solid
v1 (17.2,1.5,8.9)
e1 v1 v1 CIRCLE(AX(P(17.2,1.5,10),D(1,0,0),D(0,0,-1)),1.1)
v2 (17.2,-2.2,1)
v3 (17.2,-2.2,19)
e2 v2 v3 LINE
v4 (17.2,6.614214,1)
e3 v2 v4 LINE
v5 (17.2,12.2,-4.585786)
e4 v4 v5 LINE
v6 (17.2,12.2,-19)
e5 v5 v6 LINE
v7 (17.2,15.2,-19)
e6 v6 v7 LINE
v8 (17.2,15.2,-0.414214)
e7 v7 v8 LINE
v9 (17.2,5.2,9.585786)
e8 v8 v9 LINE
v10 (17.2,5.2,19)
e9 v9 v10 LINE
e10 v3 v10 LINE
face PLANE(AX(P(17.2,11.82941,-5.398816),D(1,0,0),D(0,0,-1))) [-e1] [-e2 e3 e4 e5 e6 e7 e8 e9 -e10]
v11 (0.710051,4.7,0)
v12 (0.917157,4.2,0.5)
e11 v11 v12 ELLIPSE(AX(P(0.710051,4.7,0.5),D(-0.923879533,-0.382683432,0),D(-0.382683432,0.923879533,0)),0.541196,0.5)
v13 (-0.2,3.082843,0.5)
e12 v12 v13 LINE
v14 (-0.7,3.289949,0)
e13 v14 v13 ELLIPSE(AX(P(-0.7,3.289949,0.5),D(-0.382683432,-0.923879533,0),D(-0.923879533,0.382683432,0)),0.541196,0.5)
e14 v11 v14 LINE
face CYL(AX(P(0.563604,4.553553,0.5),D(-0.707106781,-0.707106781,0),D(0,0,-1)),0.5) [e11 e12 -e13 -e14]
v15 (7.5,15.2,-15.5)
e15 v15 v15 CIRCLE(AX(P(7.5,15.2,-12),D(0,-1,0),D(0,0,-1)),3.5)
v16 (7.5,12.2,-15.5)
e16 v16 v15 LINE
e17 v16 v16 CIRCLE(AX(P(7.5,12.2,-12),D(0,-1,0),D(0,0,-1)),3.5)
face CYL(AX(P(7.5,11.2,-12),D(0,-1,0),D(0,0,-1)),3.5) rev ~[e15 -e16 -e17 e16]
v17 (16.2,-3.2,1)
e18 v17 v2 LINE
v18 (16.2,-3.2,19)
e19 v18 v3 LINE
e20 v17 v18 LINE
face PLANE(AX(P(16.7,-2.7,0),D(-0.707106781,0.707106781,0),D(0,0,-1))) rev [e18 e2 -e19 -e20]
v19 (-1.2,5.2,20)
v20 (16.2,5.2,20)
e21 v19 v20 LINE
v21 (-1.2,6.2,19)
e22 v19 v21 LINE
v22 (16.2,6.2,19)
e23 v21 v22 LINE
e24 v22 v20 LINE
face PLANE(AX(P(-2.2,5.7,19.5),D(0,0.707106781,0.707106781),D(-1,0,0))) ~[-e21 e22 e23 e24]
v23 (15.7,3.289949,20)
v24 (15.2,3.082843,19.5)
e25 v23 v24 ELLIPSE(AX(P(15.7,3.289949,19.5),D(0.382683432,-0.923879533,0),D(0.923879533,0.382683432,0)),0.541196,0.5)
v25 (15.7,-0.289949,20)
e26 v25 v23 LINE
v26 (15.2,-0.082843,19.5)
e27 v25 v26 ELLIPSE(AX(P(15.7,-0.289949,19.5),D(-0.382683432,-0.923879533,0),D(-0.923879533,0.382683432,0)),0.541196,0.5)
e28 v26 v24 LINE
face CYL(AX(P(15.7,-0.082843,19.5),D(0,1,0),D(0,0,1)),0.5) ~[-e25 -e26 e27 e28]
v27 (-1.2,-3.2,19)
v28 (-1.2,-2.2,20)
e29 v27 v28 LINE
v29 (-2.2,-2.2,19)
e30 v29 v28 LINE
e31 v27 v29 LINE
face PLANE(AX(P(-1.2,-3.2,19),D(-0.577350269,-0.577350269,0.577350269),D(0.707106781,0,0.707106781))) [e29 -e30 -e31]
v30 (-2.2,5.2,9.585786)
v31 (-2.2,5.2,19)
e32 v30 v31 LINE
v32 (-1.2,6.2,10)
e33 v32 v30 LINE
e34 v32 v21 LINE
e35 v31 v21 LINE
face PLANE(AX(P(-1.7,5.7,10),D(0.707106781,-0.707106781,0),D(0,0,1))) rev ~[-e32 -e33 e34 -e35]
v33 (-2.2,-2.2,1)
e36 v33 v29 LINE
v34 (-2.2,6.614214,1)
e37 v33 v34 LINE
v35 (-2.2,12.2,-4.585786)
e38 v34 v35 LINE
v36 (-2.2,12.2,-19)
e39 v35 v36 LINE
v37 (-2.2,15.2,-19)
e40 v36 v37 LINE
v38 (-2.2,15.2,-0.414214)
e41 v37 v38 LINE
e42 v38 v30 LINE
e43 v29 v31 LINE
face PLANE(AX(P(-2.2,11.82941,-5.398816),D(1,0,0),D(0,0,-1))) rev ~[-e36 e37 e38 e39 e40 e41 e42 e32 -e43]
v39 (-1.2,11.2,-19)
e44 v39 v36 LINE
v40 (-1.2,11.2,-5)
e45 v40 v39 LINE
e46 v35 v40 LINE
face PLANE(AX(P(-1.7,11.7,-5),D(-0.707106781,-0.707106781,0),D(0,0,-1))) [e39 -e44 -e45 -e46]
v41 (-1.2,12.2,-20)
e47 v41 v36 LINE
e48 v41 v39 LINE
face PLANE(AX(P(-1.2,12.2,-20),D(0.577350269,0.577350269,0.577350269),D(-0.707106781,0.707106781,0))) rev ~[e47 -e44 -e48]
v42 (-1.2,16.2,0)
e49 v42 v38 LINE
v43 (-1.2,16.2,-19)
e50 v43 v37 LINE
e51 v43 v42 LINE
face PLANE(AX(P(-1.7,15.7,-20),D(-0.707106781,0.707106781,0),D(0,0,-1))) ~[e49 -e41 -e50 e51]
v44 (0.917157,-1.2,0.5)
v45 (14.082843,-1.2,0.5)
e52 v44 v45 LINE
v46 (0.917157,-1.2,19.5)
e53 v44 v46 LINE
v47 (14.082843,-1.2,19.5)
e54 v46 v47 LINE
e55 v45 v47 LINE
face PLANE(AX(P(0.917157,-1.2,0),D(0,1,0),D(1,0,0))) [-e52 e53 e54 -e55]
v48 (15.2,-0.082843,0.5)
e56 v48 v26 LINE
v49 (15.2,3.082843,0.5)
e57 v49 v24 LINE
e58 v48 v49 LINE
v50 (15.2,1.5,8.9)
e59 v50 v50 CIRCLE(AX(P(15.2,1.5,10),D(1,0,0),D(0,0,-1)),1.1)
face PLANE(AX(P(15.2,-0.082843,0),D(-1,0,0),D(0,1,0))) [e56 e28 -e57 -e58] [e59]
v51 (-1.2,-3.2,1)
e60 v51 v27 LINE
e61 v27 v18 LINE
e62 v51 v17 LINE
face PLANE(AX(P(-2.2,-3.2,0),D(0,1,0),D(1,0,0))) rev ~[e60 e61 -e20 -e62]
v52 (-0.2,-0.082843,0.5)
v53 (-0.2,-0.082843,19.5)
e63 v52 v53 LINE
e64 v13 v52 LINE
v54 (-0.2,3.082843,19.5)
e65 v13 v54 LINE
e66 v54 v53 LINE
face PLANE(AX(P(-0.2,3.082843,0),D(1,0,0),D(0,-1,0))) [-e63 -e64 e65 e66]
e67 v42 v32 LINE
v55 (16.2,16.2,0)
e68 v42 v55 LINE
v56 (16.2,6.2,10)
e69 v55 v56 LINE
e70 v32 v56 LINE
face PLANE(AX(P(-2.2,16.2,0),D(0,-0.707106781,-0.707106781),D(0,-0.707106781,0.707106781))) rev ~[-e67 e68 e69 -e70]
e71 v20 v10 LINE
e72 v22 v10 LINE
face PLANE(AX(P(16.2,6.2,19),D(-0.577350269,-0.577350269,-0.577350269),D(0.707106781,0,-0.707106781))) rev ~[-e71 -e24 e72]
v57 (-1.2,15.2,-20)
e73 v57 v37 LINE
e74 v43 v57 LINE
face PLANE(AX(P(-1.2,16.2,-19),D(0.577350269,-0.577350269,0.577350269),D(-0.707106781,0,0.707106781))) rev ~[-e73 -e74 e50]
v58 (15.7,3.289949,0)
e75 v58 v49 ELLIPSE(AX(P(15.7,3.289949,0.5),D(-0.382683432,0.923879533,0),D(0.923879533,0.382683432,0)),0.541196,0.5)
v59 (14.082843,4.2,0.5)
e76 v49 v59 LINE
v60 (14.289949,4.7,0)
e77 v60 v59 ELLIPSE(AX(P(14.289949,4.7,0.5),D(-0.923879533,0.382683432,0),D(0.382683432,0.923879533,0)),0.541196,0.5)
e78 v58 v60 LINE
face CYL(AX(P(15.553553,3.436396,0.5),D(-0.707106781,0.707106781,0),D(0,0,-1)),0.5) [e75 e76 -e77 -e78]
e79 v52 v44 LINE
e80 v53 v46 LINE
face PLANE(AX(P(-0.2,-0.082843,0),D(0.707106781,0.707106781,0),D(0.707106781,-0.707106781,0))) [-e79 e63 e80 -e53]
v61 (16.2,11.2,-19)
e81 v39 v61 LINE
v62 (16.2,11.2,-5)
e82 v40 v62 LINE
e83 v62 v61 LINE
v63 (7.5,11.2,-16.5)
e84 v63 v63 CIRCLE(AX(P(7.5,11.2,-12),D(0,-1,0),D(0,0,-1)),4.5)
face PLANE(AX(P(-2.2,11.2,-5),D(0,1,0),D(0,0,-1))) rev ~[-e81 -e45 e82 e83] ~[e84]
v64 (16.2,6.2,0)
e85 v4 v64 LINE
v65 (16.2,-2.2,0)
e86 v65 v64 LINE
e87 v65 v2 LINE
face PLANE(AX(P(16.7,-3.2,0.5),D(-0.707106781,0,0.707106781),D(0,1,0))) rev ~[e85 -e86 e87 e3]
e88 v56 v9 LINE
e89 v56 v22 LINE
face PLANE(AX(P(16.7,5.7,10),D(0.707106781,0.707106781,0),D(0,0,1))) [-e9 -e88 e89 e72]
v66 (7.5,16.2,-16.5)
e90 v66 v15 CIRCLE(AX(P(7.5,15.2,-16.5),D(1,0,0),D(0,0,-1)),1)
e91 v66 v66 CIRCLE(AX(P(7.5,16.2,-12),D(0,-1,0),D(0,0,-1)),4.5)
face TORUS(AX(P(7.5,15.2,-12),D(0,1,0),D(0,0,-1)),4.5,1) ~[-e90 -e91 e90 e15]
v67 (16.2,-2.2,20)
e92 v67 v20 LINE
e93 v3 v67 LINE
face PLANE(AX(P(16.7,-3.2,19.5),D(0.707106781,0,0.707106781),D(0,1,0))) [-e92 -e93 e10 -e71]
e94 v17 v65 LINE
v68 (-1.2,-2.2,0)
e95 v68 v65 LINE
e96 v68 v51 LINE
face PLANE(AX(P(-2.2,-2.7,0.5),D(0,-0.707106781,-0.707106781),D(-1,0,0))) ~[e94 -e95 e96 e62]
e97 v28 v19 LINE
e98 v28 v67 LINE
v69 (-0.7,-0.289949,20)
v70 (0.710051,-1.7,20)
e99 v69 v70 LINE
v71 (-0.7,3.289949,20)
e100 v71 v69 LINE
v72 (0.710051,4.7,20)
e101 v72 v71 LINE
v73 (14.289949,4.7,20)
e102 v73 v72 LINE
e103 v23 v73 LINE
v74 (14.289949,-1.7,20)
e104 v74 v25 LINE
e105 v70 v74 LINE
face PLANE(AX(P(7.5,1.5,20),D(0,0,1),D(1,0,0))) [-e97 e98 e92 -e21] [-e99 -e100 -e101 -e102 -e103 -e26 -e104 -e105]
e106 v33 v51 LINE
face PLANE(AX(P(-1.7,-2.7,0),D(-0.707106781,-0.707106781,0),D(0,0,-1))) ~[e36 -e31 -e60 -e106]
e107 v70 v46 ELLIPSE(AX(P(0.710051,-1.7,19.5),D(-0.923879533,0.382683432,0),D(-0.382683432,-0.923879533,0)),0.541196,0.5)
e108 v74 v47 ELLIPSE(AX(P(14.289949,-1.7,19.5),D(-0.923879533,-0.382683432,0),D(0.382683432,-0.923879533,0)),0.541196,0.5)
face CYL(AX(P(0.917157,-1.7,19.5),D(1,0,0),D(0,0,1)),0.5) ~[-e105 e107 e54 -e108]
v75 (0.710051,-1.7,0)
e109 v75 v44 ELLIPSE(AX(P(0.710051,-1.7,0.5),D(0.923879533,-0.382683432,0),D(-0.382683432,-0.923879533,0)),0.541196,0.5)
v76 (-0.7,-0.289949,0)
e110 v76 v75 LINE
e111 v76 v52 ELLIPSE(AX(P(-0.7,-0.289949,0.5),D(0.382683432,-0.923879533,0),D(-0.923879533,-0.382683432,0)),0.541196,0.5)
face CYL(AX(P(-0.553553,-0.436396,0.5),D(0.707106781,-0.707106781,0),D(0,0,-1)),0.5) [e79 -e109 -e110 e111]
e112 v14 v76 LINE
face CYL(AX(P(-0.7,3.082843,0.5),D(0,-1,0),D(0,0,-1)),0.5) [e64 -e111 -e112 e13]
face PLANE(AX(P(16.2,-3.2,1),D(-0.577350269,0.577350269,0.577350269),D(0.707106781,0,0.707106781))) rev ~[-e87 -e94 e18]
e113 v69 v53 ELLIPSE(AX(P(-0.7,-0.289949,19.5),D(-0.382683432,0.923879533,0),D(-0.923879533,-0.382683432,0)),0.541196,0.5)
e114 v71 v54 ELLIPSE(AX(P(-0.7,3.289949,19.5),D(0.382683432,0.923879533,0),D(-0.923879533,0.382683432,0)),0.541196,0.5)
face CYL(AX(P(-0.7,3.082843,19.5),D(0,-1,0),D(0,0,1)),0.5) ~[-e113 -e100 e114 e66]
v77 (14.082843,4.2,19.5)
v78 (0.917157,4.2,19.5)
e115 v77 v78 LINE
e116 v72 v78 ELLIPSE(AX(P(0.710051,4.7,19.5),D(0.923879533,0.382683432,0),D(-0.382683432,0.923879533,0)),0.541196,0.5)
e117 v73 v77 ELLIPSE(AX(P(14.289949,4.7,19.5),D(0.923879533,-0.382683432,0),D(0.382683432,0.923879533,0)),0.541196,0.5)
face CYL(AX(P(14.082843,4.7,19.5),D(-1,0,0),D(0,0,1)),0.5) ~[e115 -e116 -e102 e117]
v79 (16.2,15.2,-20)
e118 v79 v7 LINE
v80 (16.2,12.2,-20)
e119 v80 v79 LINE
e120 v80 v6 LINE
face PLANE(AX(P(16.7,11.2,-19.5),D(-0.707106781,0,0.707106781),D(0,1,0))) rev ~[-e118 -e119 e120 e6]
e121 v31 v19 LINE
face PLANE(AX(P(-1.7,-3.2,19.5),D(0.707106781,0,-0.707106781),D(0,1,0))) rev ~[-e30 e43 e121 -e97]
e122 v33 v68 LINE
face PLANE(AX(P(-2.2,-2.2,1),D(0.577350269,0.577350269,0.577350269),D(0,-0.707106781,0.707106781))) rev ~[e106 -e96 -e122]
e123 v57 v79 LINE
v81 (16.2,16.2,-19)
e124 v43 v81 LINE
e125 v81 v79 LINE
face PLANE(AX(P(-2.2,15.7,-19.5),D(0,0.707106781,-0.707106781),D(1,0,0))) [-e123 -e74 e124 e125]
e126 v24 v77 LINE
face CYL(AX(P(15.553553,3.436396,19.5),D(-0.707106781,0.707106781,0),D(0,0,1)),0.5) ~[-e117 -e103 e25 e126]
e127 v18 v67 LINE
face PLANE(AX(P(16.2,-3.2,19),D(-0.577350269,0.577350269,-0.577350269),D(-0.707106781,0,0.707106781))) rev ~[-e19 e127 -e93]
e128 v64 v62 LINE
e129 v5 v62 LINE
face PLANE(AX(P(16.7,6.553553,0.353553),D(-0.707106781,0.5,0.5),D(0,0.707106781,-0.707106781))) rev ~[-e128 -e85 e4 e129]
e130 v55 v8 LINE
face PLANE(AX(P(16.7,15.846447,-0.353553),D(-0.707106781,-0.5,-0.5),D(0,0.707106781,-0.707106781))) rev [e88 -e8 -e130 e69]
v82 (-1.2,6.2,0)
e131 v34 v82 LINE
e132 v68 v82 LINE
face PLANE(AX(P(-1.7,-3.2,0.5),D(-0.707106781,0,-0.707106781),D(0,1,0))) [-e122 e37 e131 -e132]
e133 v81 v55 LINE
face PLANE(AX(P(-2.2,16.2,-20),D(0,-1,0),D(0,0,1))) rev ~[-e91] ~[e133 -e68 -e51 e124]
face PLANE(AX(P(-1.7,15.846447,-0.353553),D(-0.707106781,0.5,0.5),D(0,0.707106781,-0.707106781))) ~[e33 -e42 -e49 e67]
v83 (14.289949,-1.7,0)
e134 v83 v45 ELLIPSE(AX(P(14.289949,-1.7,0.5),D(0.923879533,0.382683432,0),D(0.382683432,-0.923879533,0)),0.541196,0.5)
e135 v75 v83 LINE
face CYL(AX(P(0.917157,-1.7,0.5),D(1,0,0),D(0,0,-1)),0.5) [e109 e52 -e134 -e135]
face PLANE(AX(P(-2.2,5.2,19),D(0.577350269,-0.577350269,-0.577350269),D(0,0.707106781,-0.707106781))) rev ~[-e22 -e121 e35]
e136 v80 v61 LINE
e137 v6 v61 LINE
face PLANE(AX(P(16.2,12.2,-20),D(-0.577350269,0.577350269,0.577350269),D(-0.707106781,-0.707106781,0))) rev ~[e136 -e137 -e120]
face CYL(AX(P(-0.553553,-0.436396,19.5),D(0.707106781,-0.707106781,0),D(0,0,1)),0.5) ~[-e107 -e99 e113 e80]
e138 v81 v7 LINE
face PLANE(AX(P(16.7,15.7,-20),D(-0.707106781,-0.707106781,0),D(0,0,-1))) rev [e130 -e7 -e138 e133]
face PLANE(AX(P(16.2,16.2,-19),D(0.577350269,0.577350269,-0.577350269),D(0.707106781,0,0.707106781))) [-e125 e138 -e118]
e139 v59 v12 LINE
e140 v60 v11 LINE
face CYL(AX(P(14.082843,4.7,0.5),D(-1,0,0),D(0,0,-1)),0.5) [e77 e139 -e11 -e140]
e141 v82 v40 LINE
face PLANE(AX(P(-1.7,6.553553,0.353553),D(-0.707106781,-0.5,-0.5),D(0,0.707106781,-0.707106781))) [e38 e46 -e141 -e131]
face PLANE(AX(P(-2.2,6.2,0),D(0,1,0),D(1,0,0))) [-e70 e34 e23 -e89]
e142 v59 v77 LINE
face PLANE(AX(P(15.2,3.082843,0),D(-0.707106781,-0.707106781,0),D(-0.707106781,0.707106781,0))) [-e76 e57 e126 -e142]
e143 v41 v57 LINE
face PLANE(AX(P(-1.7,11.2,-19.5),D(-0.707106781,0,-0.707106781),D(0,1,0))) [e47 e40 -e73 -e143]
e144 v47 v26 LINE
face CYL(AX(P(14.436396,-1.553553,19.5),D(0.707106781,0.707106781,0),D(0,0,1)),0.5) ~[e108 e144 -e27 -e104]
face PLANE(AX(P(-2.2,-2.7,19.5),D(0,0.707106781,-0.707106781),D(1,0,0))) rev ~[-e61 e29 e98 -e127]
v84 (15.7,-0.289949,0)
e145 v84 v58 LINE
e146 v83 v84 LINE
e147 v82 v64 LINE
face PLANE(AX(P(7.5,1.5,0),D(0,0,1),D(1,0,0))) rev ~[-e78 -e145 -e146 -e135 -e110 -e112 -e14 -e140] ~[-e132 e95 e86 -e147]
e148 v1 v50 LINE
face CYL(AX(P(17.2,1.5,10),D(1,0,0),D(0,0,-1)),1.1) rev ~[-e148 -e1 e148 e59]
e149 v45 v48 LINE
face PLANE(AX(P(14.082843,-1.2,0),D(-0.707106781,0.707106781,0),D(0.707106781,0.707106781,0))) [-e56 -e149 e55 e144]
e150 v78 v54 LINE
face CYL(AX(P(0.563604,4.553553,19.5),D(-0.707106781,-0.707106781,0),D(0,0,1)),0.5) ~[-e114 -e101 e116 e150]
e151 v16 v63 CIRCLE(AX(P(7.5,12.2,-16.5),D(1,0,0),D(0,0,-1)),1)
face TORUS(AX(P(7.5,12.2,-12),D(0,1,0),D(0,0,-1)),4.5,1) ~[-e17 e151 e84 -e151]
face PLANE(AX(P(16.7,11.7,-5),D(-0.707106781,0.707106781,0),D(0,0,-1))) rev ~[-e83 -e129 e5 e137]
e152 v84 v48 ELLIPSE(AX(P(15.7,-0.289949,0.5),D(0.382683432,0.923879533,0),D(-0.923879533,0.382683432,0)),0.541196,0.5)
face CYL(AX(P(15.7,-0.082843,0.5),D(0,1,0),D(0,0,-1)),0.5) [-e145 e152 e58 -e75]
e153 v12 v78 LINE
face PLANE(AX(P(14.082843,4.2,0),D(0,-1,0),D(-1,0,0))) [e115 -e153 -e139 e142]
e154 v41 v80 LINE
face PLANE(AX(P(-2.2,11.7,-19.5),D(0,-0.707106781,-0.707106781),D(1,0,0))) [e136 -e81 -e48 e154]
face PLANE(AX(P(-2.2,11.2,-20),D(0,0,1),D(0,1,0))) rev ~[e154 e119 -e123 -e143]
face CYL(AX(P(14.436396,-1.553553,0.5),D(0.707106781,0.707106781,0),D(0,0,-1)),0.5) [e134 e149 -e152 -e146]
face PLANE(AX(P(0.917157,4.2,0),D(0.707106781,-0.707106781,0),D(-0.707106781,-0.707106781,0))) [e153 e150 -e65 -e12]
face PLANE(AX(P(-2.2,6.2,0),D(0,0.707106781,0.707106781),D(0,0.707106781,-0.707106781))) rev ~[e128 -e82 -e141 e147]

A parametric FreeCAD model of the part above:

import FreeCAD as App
import Part
import Sketcher
from FreeCAD import Vector


def edges_at(feature, points):
    """Names of the edges that pass closest to the given points."""
    edges = feature.Shape.Edges
    near = lambda p: min(range(len(edges)), key=lambda i: edges[i].distToShape(Part.Vertex(*p))[0])
    return sorted({f"Edge{near(p) + 1}" for p in points})


def add_polygon(sketch, points):
    """Adds a closed chain of lines whose ends are joined by coincident constraints."""
    first, n = sketch.GeometryCount, len(points)
    for a, b in zip(points, points[1:] + points[:1]):
        sketch.addGeometry(Part.LineSegment(App.Vector(*a, 0), App.Vector(*b, 0)), False)
    for i in range(n):
        sketch.addConstraint(Sketcher.Constraint("Coincident", first + i, 2, first + (i + 1) % n, 1))

doc = App.newDocument("Part")
body = doc.addObject("PartDesign::Body", "Body")

# Sketch on XY plane
sketch1 = body.newObject("Sketcher::SketchObject", "Sketch")
sketch1.AttachmentSupport = (doc.getObject("XY_Plane"), [""])
sketch1.MapMode = "FlatFace"
add_polygon(sketch1, [(-2.2, 6.2), (-2.2, -3.2), (17.2, -3.2), (17.2, 6.2)])  # lines 0-3
add_polygon(sketch1, [(14.082843, 4.2), (15.2, 3.082843), (15.2, -0.082843), (14.082843, -1.2), (0.917157, -1.2), (-0.2, -0.082843), (-0.2, 3.082843), (0.917157, 4.2)])  # lines 4-11
sketch1.addConstraint([
    Sketcher.Constraint("Vertical", 0),
    Sketcher.Constraint("Horizontal", 1),
    Sketcher.Constraint("Vertical", 2),
    Sketcher.Constraint("Horizontal", 3),
    Sketcher.Constraint("Vertical", 5),
    Sketcher.Constraint("Horizontal", 7),
    Sketcher.Constraint("Vertical", 9),
    Sketcher.Constraint("Horizontal", 11),
    Sketcher.Constraint("Perpendicular", 4, 6),
    Sketcher.Constraint("Perpendicular", 6, 8),
    Sketcher.Constraint("Perpendicular", 8, 10),
    Sketcher.Constraint("Horizontal", 5, 2, 8, 2),
    Sketcher.Constraint("Horizontal", 4, 2, 9, 2),
    Sketcher.Constraint("Vertical", 7, 2, 10, 2),
    Sketcher.Constraint("Vertical", 6, 2, 11, 2),
    Sketcher.Constraint("DistanceX", 1, 1, 1, 2, 19.4),
    Sketcher.Constraint("DistanceY", 0, 2, 0, 1, 9.4),
    Sketcher.Constraint("DistanceX", 4, 2, 2, 2, 2.0),
    Sketcher.Constraint("DistanceY", 1, 2, 6, 2, 2.0),
    Sketcher.Constraint("DistanceX", 0, 2, 8, 2, 2.0),
    Sketcher.Constraint("DistanceY", 10, 2, 3, 2, 2.0),
    Sketcher.Constraint("DistanceX", 0, 2, -1, 1, 2.2),
    Sketcher.Constraint("DistanceY", 0, 2, -1, 1, 3.2),
    Sketcher.Constraint("Distance", 4, 1.579899),
])
pad1 = body.newObject("PartDesign::Pad", "Pad")
pad1.Profile = sketch1
pad1.Length = 20

# Sketch on YZ plane
sketch2 = body.newObject("Sketcher::SketchObject", "Sketch001")
sketch2.AttachmentSupport = (doc.getObject("YZ_Plane"), [""])
sketch2.MapMode = "FlatFace"
sketch2.AttachmentOffset = App.Placement(Vector(0, 0, -2.2), App.Rotation())
add_polygon(sketch2, [(16.2, 0), (6.2, 10), (6.2, 0), (11.2, -5), (11.2, -20), (16.2, -20)])  # lines 0-5
sketch2.addConstraint([
    Sketcher.Constraint("Vertical", 1),
    Sketcher.Constraint("Vertical", 3),
    Sketcher.Constraint("Horizontal", 4),
    Sketcher.Constraint("Vertical", 5),
    Sketcher.Constraint("PointOnObject", 1, 2, -1),
    Sketcher.Constraint("PointOnObject", 5, 2, -1),
    Sketcher.Constraint("Parallel", 0, 2),
    Sketcher.Constraint("DistanceX", 4, 1, 4, 2, 5.0),
    Sketcher.Constraint("DistanceY", 1, 2, 1, 1, 10.0),
    Sketcher.Constraint("DistanceY", 3, 2, 3, 1, 15.0),
    Sketcher.Constraint("DistanceY", 5, 1, 5, 2, 20.0),
    Sketcher.Constraint("DistanceX", -1, 1, 0, 2, 6.2),
])
pad2 = body.newObject("PartDesign::Pad", "Pad001")
pad2.Profile = sketch2
pad2.Length = 19.4
doc.recompute()

chamfer = body.newObject("PartDesign::Chamfer", "Chamfer")
chamfer.Base = (pad2, edges_at(pad2, [
    (17.2, 1.5, 20),
    (7.5, 6.2, 20),
    (17.2, 11.2, 5),
    (-2.2, 11.2, 5),
    (17.2, 8.7, -2.5),
    (-2.2, 8.7, -2.5),
    (17.2, 11.2, -12.5),
    (-2.2, 11.2, -12.5),
    (17.2, 13.7, -20),
    (7.5, 11.2, -20),
    (-2.2, 13.7, -20),
    (7.5, 16.2, -20),
    (-2.2, 16.2, -10),
    (17.2, 16.2, -10),
    (-2.2, 1.5, 20),
    (17.2, 1.5, 0),
    (7.5, -3.2, 0),
    (-2.2, 1.5, 0),
    (-2.2, 6.2, 15),
    (17.2, 6.2, 15),
    (17.2, -3.2, 10),
    (-2.2, -3.2, 10),
    (7.5, -3.2, 20),
]))
chamfer.Size = 1

# Sketch on XZ plane
sketch3 = body.newObject("Sketcher::SketchObject", "Sketch002")
sketch3.AttachmentSupport = (doc.getObject("XZ_Plane"), [""])
sketch3.MapMode = "FlatFace"
sketch3.AttachmentOffset = App.Placement(Vector(0, 0, -11.2), App.Rotation())
sketch3.addGeometry(Part.Circle(Vector(7.5, -12, 0), Vector(0, 0, 1), 3.5), False)
sketch3.addConstraint([
    Sketcher.Constraint("Diameter", 0, 7.0),
    Sketcher.Constraint("DistanceY", 0, 3, -1, 1, 12.0),
    Sketcher.Constraint("DistanceX", -1, 1, 0, 3, 7.5),
])
pocket1 = body.newObject("PartDesign::Pocket", "Pocket")
pocket1.Profile = sketch3
pocket1.Length = 20
doc.recompute()

fillet = body.newObject("PartDesign::Fillet", "Fillet")
fillet.Base = (pocket1, edges_at(pocket1, [(7.5, 16.2, -8.5), (7.5, 11.2, -8.5)]))
fillet.Radius = 1
doc.recompute()

fillet2 = body.newObject("PartDesign::Fillet", "Fillet001")
fillet2.Base = (fillet, edges_at(fillet, [
    (15.2, 1.5, 0),
    (14.641, 3.641, 0),
    (7.5, 4.2, 0),
    (0.359, 3.641, 0),
    (-0.2, 1.5, 0),
    (0.359, -0.641, 0),
    (7.5, -1.2, 0),
    (14.641, -0.641, 0),
    (15.2, 1.5, 20),
    (14.641, 3.641, 20),
    (7.5, 4.2, 20),
    (0.359, 3.641, 20),
    (-0.2, 1.5, 20),
    (0.359, -0.641, 20),
    (7.5, -1.2, 20),
    (14.641, -0.641, 20),
]))
fillet2.Radius = 0.5

# Sketch on YZ plane
sketch4 = body.newObject("Sketcher::SketchObject", "Sketch003")
sketch4.AttachmentSupport = (doc.getObject("YZ_Plane"), [""])
sketch4.MapMode = "FlatFace"
sketch4.AttachmentOffset = App.Placement(Vector(0, 0, 17.2), App.Rotation())
sketch4.addGeometry(Part.Circle(Vector(1.5, 10, 0), Vector(0, 0, 1), 1.1), False)
sketch4.addConstraint([
    Sketcher.Constraint("Diameter", 0, 2.2),
    Sketcher.Constraint("DistanceY", -1, 1, 0, 3, 10.0),
    Sketcher.Constraint("DistanceX", -1, 1, 0, 3, 1.5),
])
pocket2 = body.newObject("PartDesign::Pocket", "Pocket001")
pocket2.Profile = sketch4
pocket2.Length = 10

doc.recompute()
